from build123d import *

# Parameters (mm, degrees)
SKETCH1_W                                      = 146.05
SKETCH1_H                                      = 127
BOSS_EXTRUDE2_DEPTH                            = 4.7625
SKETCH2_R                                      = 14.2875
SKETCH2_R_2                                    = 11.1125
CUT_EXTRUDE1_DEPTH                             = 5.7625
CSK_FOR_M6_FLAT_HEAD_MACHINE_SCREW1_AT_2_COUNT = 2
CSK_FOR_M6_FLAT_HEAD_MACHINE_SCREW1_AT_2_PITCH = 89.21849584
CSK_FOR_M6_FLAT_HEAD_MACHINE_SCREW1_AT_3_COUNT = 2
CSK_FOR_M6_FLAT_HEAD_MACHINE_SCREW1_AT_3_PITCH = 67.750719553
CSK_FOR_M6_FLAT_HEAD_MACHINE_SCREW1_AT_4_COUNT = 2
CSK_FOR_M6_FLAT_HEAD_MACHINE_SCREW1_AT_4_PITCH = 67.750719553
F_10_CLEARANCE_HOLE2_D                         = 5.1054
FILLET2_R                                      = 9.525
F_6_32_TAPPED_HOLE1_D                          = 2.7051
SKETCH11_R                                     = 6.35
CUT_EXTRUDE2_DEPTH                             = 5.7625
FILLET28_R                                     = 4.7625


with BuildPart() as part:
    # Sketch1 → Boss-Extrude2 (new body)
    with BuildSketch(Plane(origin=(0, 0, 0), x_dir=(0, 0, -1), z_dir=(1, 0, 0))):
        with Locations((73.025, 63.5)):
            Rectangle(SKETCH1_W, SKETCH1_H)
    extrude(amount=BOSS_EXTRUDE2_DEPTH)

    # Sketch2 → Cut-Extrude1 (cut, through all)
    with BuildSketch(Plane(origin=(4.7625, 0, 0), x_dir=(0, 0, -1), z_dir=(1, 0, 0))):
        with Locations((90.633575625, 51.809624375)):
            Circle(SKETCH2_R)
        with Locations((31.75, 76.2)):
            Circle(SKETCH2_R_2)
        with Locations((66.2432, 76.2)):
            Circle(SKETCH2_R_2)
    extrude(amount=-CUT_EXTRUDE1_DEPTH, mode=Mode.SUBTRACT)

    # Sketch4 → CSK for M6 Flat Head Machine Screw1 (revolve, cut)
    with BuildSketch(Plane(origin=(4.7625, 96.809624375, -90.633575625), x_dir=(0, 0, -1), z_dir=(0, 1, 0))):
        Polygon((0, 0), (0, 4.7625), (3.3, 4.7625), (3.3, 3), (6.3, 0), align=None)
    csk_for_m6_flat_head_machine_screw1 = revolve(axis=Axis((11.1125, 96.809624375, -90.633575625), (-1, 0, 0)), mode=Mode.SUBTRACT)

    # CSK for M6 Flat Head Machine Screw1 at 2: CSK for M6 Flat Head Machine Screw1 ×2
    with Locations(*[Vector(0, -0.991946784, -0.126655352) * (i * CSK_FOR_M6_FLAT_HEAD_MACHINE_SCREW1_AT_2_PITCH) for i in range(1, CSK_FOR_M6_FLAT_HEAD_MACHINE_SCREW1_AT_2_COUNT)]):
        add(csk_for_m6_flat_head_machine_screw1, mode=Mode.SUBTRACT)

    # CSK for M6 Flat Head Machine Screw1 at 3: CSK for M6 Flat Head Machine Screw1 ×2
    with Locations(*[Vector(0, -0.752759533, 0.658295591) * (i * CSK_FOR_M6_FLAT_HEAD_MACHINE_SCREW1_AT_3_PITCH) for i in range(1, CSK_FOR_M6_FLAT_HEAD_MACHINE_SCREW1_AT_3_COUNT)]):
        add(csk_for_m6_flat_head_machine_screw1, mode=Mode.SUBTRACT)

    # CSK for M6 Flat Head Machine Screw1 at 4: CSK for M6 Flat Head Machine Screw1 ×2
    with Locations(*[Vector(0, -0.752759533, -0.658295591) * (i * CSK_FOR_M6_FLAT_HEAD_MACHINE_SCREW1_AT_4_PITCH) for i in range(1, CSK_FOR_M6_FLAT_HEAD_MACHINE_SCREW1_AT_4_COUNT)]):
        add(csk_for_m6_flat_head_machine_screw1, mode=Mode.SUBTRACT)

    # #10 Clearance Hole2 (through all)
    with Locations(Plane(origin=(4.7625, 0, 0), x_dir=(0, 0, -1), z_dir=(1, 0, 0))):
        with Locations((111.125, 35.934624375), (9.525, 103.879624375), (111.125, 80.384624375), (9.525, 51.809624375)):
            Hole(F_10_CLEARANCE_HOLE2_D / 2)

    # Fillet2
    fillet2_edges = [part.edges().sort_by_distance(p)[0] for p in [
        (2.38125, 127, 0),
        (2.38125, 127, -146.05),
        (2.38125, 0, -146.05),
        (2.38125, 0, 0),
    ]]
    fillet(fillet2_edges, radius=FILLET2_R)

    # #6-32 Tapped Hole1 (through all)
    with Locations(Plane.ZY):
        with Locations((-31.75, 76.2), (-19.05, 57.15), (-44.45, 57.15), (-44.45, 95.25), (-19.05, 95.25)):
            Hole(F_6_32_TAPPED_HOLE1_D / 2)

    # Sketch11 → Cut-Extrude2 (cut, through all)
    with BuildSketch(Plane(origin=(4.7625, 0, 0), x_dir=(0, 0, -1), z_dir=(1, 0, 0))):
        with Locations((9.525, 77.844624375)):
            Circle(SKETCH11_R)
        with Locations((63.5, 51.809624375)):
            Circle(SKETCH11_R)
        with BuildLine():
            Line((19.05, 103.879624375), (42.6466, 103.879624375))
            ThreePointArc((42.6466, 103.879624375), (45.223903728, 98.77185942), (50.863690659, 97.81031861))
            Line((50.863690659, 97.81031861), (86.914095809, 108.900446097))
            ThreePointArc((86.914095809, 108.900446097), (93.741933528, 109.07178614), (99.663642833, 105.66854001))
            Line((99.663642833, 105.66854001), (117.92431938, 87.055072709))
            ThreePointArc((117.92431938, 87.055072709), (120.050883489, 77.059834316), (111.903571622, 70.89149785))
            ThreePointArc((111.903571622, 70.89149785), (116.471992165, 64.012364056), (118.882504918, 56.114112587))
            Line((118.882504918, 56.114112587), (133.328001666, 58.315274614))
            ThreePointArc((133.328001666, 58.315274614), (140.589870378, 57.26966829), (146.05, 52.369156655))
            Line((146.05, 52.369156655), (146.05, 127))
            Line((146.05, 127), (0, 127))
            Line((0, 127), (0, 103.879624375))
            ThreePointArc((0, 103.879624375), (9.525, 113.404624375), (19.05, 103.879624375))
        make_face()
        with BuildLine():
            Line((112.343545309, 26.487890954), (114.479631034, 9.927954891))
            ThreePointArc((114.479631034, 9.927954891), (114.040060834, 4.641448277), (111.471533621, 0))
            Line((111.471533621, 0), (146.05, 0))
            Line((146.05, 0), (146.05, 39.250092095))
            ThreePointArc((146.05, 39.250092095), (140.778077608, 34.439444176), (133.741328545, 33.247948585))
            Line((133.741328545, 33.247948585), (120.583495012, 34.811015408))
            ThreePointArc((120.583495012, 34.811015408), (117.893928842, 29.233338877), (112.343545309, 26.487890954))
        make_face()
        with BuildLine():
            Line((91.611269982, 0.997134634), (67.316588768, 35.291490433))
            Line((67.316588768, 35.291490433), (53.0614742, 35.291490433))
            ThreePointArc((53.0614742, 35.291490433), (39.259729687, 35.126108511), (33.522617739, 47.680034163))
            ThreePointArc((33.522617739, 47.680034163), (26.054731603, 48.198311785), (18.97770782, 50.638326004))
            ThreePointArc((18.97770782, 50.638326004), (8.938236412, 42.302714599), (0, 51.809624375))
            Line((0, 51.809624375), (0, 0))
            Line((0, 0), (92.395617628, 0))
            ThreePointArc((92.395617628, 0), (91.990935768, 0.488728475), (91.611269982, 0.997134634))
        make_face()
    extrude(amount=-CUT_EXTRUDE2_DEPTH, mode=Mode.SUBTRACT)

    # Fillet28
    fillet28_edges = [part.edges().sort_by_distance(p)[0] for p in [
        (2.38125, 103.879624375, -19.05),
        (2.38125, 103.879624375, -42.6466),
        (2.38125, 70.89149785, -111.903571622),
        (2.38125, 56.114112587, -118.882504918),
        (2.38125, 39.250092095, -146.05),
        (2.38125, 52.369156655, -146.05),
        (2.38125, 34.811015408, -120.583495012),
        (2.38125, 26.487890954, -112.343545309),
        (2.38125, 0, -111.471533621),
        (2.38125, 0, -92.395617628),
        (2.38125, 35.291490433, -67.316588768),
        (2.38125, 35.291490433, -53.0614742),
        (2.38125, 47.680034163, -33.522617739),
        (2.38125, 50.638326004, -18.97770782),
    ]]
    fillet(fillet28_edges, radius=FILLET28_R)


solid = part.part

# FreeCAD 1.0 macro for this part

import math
import FreeCAD as App
import Part
import Sketcher

V = App.Vector
Q = App.Units.Quantity


def edges_at(feature, points):
    """Names of the edges that pass closest to the given points."""
    edges = feature.Shape.Edges
    near = lambda p: min(range(len(edges)), key=lambda i: edges[i].distToShape(Part.Vertex(*p))[0])
    return sorted({f"Edge{near(p) + 1}" for p in points})


def add_polygon(sketch, points):
    """Adds a closed chain of lines whose ends are joined by coincident constraints."""
    first, n = sketch.GeometryCount, len(points)
    for a, b in zip(points, points[1:] + points[:1]):
        sketch.addGeometry(Part.LineSegment(App.Vector(*a, 0), App.Vector(*b, 0)), False)
    for i in range(n):
        sketch.addConstraint(Sketcher.Constraint("Coincident", first + i, 2, first + (i + 1) % n, 1))

doc = App.newDocument("Part")
body = doc.addObject("PartDesign::Body", "Body")

sketch1 = doc.addObject("Sketcher::SketchObject", "Sketch")
body.addObject(sketch1)
sketch1.AttachmentSupport = (doc.YZ_Plane, [""])
sketch1.MapMode = "FlatFace"
add_polygon(sketch1, [(127, 0), (0, 0), (0, -146.05), (127, -146.05)])
sketch1.addConstraint(Sketcher.Constraint("Horizontal", 0))
sketch1.addConstraint(Sketcher.Constraint("Vertical", 1))
sketch1.addConstraint(Sketcher.Constraint("Horizontal", 2))
sketch1.addConstraint(Sketcher.Constraint("Vertical", 3))
sketch1.addConstraint(Sketcher.Constraint("Coincident", 0, 2, -1, 1))
sketch1.addConstraint(Sketcher.Constraint("DistanceX", 0, 2, 0, 1, Q("5 in")))
sketch1.addConstraint(Sketcher.Constraint("DistanceY", 1, 2, 1, 1, Q("5.75 in")))
pad1 = doc.addObject("PartDesign::Pad", "Pad")
body.addObject(pad1)
pad1.Profile = sketch1
pad1.Length = Q("0.1875 in")

sketch2 = doc.addObject("Sketcher::SketchObject", "Sketch001")
body.addObject(sketch2)
sketch2.AttachmentSupport = (doc.YZ_Plane, [""])
sketch2.MapMode = "FlatFace"
sketch2.AttachmentOffset = App.Placement(V(0, 0, 0.1875 * 25.4), App.Rotation())
sketch2.addGeometry(Part.Circle(V(51.809624, -90.633576, 0), V(0, 0, 1), 14.2875), False)
sketch2.addGeometry(Part.Circle(V(76.2, -31.75, 0), V(0, 0, 1), 11.1125), False)
sketch2.addGeometry(Part.Circle(V(76.2, -66.2432, 0), V(0, 0, 1), 11.1125), False)
sketch2.addConstraint(Sketcher.Constraint("Equal", 1, 2))
sketch2.addConstraint(Sketcher.Constraint("Vertical", 1, 3, 2, 3))
sketch2.addConstraint(Sketcher.Constraint("Diameter", 0, Q("1.125 in")))
sketch2.addConstraint(Sketcher.Constraint("Diameter", 1, Q("0.875 in")))
sketch2.addConstraint(Sketcher.Constraint("DistanceX", -1, 1, 1, 3, Q("3 in")))
sketch2.addConstraint(Sketcher.Constraint("DistanceY", 1, 3, -1, 1, Q("1.25 in")))
sketch2.addConstraint(Sketcher.Constraint("DistanceY", 2, 3, -1, 1, Q("2.608 in")))
sketch2.addConstraint(Sketcher.Constraint("DistanceX", -1, 1, 0, 3, Q("51.809624 mm")))
sketch2.addConstraint(Sketcher.Constraint("DistanceY", 0, 3, -1, 1, Q("90.633576 mm")))
pocket1 = doc.addObject("PartDesign::Pocket", "Pocket")
body.addObject(pocket1)
pocket1.Profile = sketch2
pocket1.Type = "ThroughAll"

sketch3 = doc.addObject("Sketcher::SketchObject", "Sketch002")
body.addObject(sketch3)
sketch3.AttachmentSupport = (doc.XZ_Plane, [""])
sketch3.MapMode = "FlatFace"
sketch3.AttachmentOffset = App.Placement(V(0, 0, -96.809624), App.Rotation())
add_polygon(sketch3, [(0, -90.633576), (4.7625, -90.633576), (4.7625, -96.933576), (1.7625, -93.933576), (0, -93.933576)])
sketch3.addGeometry(Part.LineSegment(V(4.7625, -90.633576, 0), V(0, -90.633576, 0)), True)
sketch3.addConstraint(Sketcher.Constraint("Horizontal", 0))
sketch3.addConstraint(Sketcher.Constraint("Vertical", 1))
sketch3.addConstraint(Sketcher.Constraint("Horizontal", 3))
sketch3.addConstraint(Sketcher.Constraint("Vertical", 4))
sketch3.addConstraint(Sketcher.Constraint("Horizontal", 5))
sketch3.addConstraint(Sketcher.Constraint("Coincident", 5, 1, 0, 2))
sketch3.addConstraint(Sketcher.Constraint("PointOnObject", 3, 2, -2))
sketch3.addConstraint(Sketcher.Constraint("PointOnObject", 5, 2, -2))
sketch3.addConstraint(Sketcher.Constraint("Angle", 2, Q("135 deg")))
sketch3.addConstraint(Sketcher.Constraint("DistanceX", 0, 1, 0, 2, Q("0.1875 in")))
sketch3.addConstraint(Sketcher.Constraint("DistanceX", 3, 2, 3, 1, Q("1.7625 mm")))
sketch3.addConstraint(Sketcher.Constraint("DistanceY", 1, 2, 1, 1, Q("6.3 mm")))
sketch3.addConstraint(Sketcher.Constraint("DistanceY", 0, 2, -1, 1, Q("90.633576 mm")))
groove = doc.addObject("PartDesign::Groove", "Groove")
body.addObject(groove)
groove.Profile = sketch3
groove.ReferenceAxis = (sketch3, ["Axis0"])
groove.Angle = 360
doc.recompute()

datumline = doc.addObject("PartDesign::Line", "DatumLine")
body.addObject(datumline)
datumline.Placement = App.Placement(V(0, 0, 0), App.Rotation(V(0, 0, 1), V(0, -0.991946784, -0.126655352)))
linearpattern = doc.addObject("PartDesign::LinearPattern", "LinearPattern")
body.addObject(linearpattern)
linearpattern.Originals = [groove]
linearpattern.Direction = (datumline, [""])
linearpattern.Mode = "offset"
linearpattern.Offset = 89.218496
linearpattern.Occurrences = 2
body.Tip = linearpattern
doc.recompute()

datumline2 = doc.addObject("PartDesign::Line", "DatumLine001")
body.addObject(datumline2)
datumline2.Placement = App.Placement(V(0, 0, 0), App.Rotation(V(0, 0, 1), V(0, -0.752759533, 0.658295591)))
linearpattern2 = doc.addObject("PartDesign::LinearPattern", "LinearPattern001")
body.addObject(linearpattern2)
linearpattern2.Originals = [groove]
linearpattern2.Direction = (datumline2, [""])
linearpattern2.Mode = "offset"
linearpattern2.Offset = 67.75072
linearpattern2.Occurrences = 2
body.Tip = linearpattern2
doc.recompute()

datumline3 = doc.addObject("PartDesign::Line", "DatumLine002")
body.addObject(datumline3)
datumline3.Placement = App.Placement(V(0, 0, 0), App.Rotation(V(0, 0, 1), V(0, -0.752759533, -0.658295591)))
linearpattern3 = doc.addObject("PartDesign::LinearPattern", "LinearPattern002")
body.addObject(linearpattern3)
linearpattern3.Originals = [groove]
linearpattern3.Direction = (datumline3, [""])
linearpattern3.Mode = "offset"
linearpattern3.Offset = 67.75072
linearpattern3.Occurrences = 2
body.Tip = linearpattern3

sketch4 = doc.addObject("Sketcher::SketchObject", "Sketch003")
body.addObject(sketch4)
sketch4.AttachmentSupport = (doc.YZ_Plane, [""])
sketch4.MapMode = "FlatFace"
sketch4.AttachmentOffset = App.Placement(V(0, 0, 0.1875 * 25.4), App.Rotation())
sketch4.addGeometry(Part.Circle(V(35.934624, -111.125, 0), V(0, 0, 1), 2.5527), False)
sketch4.addGeometry(Part.Circle(V(103.879624, -9.525, 0), V(0, 0, 1), 2.5527), False)
sketch4.addGeometry(Part.Circle(V(80.384624, -111.125, 0), V(0, 0, 1), 2.5527), False)
sketch4.addGeometry(Part.Circle(V(51.809624, -9.525, 0), V(0, 0, 1), 2.5527), False)
sketch4.addConstraint(Sketcher.Constraint("Equal", 0, 1))
sketch4.addConstraint(Sketcher.Constraint("Equal", 1, 2))
sketch4.addConstraint(Sketcher.Constraint("Equal", 2, 3))
sketch4.addConstraint(Sketcher.Constraint("Horizontal", 0, 3, 2, 3))
sketch4.addConstraint(Sketcher.Constraint("Horizontal", 1, 3, 3, 3))
sketch4.addConstraint(Sketcher.Constraint("Diameter", 0, Q("0.201 in")))
sketch4.addConstraint(Sketcher.Constraint("DistanceY", 0, 3, 1, 3, Q("4 in")))
sketch4.addConstraint(Sketcher.Constraint("DistanceX", 0, 3, 2, 3, Q("1.75 in")))
sketch4.addConstraint(Sketcher.Constraint("DistanceX", 3, 3, 1, 3, Q("2.05 in")))
sketch4.addConstraint(Sketcher.Constraint("DistanceY", 0, 3, -1, 1, Q("4.375 in")))
sketch4.addConstraint(Sketcher.Constraint("DistanceX", 0, 3, 1, 3, Q("2.675 in")))
sketch4.addConstraint(Sketcher.Constraint("DistanceX", -1, 1, 0, 3, Q("35.934624 mm")))
doc.recompute()
hole = doc.addObject("PartDesign::Hole", "Hole")
body.addObject(hole)
hole.Profile = sketch4
hole.ThreadType = "None"
hole.Diameter = Q("0.201 in")
hole.DepthType = "ThroughAll"
doc.recompute()

fillet = doc.addObject("PartDesign::Fillet", "Fillet")
body.addObject(fillet)
fillet.Base = (hole, edges_at(hole, [
    (2.381, 127, 0),
    (2.381, 127, -146.05),
    (2.381, 0, -146.05),
    (2.381, 0, 0),
]))
fillet.Radius = Q("0.375 in")

sketch5 = doc.addObject("Sketcher::SketchObject", "Sketch004")
body.addObject(sketch5)
sketch5.AttachmentSupport = (doc.YZ_Plane, [""])
sketch5.MapMode = "FlatFace"
sketch5.addGeometry(Part.Circle(V(76.2, -31.75, 0), V(0, 0, 1), 1.35255), False)
sketch5.addGeometry(Part.Circle(V(57.15, -19.05, 0), V(0, 0, 1), 1.35255), False)
sketch5.addGeometry(Part.Circle(V(57.15, -44.45, 0), V(0, 0, 1), 1.35255), False)
sketch5.addGeometry(Part.Circle(V(95.25, -44.45, 0), V(0, 0, 1), 1.35255), False)
sketch5.addGeometry(Part.Circle(V(95.25, -19.05, 0), V(0, 0, 1), 1.35255), False)
sketch5.addConstraint(Sketcher.Constraint("Equal", 0, 1))
sketch5.addConstraint(Sketcher.Constraint("Equal", 1, 2))
sketch5.addConstraint(Sketcher.Constraint("Equal", 2, 3))
sketch5.addConstraint(Sketcher.Constraint("Equal", 3, 4))
sketch5.addConstraint(Sketcher.Constraint("Horizontal", 2, 3, 3, 3))
sketch5.addConstraint(Sketcher.Constraint("Horizontal", 1, 3, 4, 3))
sketch5.addConstraint(Sketcher.Constraint("Vertical", 1, 3, 2, 3))
sketch5.addConstraint(Sketcher.Constraint("Vertical", 3, 3, 4, 3))
sketch5.addConstraint(Sketcher.Constraint("DistanceX", -1, 1, 0, 3, Q("3 in")))
sketch5.addConstraint(Sketcher.Constraint("DistanceY", 2, 3, 1, 3, Q("1 in")))
sketch5.addConstraint(Sketcher.Constraint("Diameter", 0, Q("0.1065 in")))
sketch5.addConstraint(Sketcher.Constraint("DistanceY", 0, 3, 1, 3, Q("0.5 in")))
sketch5.addConstraint(Sketcher.Constraint("DistanceX", 2, 3, 3, 3, Q("1.5 in")))
sketch5.addConstraint(Sketcher.Constraint("DistanceY", 0, 3, -1, 1, Q("1.25 in")))
sketch5.addConstraint(Sketcher.Constraint("DistanceX", -1, 1, 1, 3, Q("2.25 in")))
doc.recompute()
hole2 = doc.addObject("PartDesign::Hole", "Hole001")
body.addObject(hole2)
hole2.Profile = sketch5
hole2.ThreadType = "None"
hole2.Diameter = Q("0.1065 in")
hole2.DepthType = "ThroughAll"
hole2.Reversed = True

sketch6 = doc.addObject("Sketcher::SketchObject", "Sketch005")
body.addObject(sketch6)
sketch6.AttachmentSupport = (doc.YZ_Plane, [""])
sketch6.MapMode = "FlatFace"
sketch6.AttachmentOffset = App.Placement(V(0, 0, 0.1875 * 25.4), App.Rotation())
sketch6.addGeometry(Part.Circle(V(77.844624, -9.525, 0), V(0, 0, 1), 6.35), False)
sketch6.addGeometry(Part.Circle(V(51.809624, -63.5, 0), V(0, 0, 1), 6.35), False)
sketch6.addGeometry(Part.LineSegment(V(103.879624, -19.05, 0), V(103.879624, -42.6466, 0)), False)
sketch6.addGeometry(Part.ArcOfCircle(Part.Circle(V(103.879624, -48.9966, 0), V(0, 0, 1), 6.35), math.radians(90), math.radians(197.099383)), False)
sketch6.addGeometry(Part.LineSegment(V(97.810319, -50.863691, 0), V(108.900446, -86.914096, 0)), False)
sketch6.addGeometry(Part.ArcOfCircle(Part.Circle(V(96.809624, -90.633576, 0), V(0, 0, 1), 12.65), math.radians(-45.548157), math.radians(17.099383)), False)
sketch6.addGeometry(Part.LineSegment(V(105.66854, -99.663643, 0), V(87.055073, -117.924319, 0)), False)
sketch6.addGeometry(Part.ArcOfCircle(Part.Circle(V(80.384624, -111.125, 0), V(0, 0, 1), 9.525), math.radians(-175.311423), math.radians(-45.548157)), False)
sketch6.addGeometry(Part.ArcOfCircle(Part.Circle(V(51.809624, -90.633576, 0), V(0, 0, 1), 28.575), math.radians(-81.336084), math.radians(-48.103884)), False)
sketch6.addGeometry(Part.LineSegment(V(56.114113, -118.882505, 0), V(58.315275, -133.328002, 0)), False)
sketch6.addGeometry(Part.ArcOfCircle(Part.Circle(V(45.809624, -135.233576, 0), V(0, 0, 1), 12.65), math.radians(-58.765625), math.radians(8.663916)), False)
sketch6.addGeometry(Part.LineSegment(V(52.369157, -146.05, 0), V(127, -146.05, 0)), False)
sketch6.addGeometry(Part.LineSegment(V(127, -146.05, 0), V(127, 0, 0)), False)
sketch6.addGeometry(Part.LineSegment(V(127, 0, 0), V(103.879624, 0, 0)), False)
sketch6.addGeometry(Part.ArcOfCircle(Part.Circle(V(103.879624, -9.525, 0), V(0, 0, 1), 9.525), math.radians(-90), math.radians(90)), False)
sketch6.addGeometry(Part.LineSegment(V(26.487891, -112.343545, 0), V(9.927955, -114.479631, 0)), False)
sketch6.addGeometry(Part.ArcOfCircle(Part.Circle(V(8.309624, -101.933576, 0), V(0, 0, 1), 12.65), math.radians(-131.062911), math.radians(-82.649936)), False)
sketch6.addGeometry(Part.LineSegment(V(0, -111.471534, 0), V(0, -146.05, 0)), False)
sketch6.addGeometry(Part.LineSegment(V(0, -146.05, 0), V(39.250092, -146.05, 0)), False)
sketch6.addGeometry(Part.ArcOfCircle(Part.Circle(V(45.809624, -135.233576, 0), V(0, 0, 1), 12.65), math.radians(173.225375), math.radians(238.765625)), False)
sketch6.addGeometry(Part.LineSegment(V(33.247949, -133.741329, 0), V(34.811015, -120.583495, 0)), False)
sketch6.addGeometry(Part.ArcOfCircle(Part.Circle(V(35.934624, -111.125, 0), V(0, 0, 1), 9.525), math.radians(-172.649936), math.radians(-96.774625)), False)
sketch6.addGeometry(Part.LineSegment(V(0.997135, -91.61127, 0), V(35.29149, -67.316589, 0)), False)
sketch6.addGeometry(Part.LineSegment(V(35.29149, -67.316589, 0), V(35.29149, -53.061474, 0)), False)
sketch6.addGeometry(Part.ArcOfCircle(Part.Circle(V(45.809624, -46.033576, 0), V(0, 0, 1), 12.65), math.radians(81.497157), math.radians(213.749647)), False)
sketch6.addGeometry(Part.ArcOfCircle(Part.Circle(V(76.2, -31.75, 0), V(0, 0, 1), 28.575), math.radians(153.450273), math.radians(183.556562)), False)
sketch6.addGeometry(Part.ArcOfCircle(Part.Circle(V(51.809624, -9.525, 0), V(0, 0, 1), 9.525), math.radians(90), math.radians(262.936404)), False)
sketch6.addGeometry(Part.LineSegment(V(51.809624, 0, 0), V(0, 0, 0)), False)
sketch6.addGeometry(Part.LineSegment(V(0, 0, 0), V(0, -92.395618, 0)), False)
sketch6.addGeometry(Part.ArcOfCircle(Part.Circle(V(8.309624, -101.933576, 0), V(0, 0, 1), 12.65), math.radians(125.314379), math.radians(131.062911)), False)
sketch6.addConstraint(Sketcher.Constraint("Coincident", 2, 2, 3, 1))
sketch6.addConstraint(Sketcher.Constraint("Tangent", 3, 2, 4, 1))
sketch6.addConstraint(Sketcher.Constraint("Tangent", 4, 2, 5, 2))
sketch6.addConstraint(Sketcher.Constraint("Tangent", 5, 1, 6, 1))
sketch6.addConstraint(Sketcher.Constraint("Tangent", 6, 2, 7, 2))
sketch6.addConstraint(Sketcher.Constraint("Coincident", 7, 1, 8, 2))
sketch6.addConstraint(Sketcher.Constraint("Coincident", 8, 1, 9, 1))
sketch6.addConstraint(Sketcher.Constraint("Tangent", 9, 2, 10, 2))
sketch6.addConstraint(Sketcher.Constraint("Coincident", 10, 1, 11, 1))
sketch6.addConstraint(Sketcher.Constraint("Coincident", 11, 2, 12, 1))
sketch6.addConstraint(Sketcher.Constraint("Coincident", 12, 2, 13, 1))
sketch6.addConstraint(Sketcher.Constraint("Tangent", 13, 2, 14, 2))
sketch6.addConstraint(Sketcher.Constraint("Coincident", 14, 1, 2, 1))
sketch6.addConstraint(Sketcher.Constraint("Tangent", 15, 2, 16, 2))
sketch6.addConstraint(Sketcher.Constraint("Coincident", 16, 1, 17, 1))
sketch6.addConstraint(Sketcher.Constraint("Coincident", 17, 2, 18, 1))
sketch6.addConstraint(Sketcher.Constraint("Coincident", 18, 2, 19, 2))
sketch6.addConstraint(Sketcher.Constraint("Tangent", 19, 1, 20, 1))
sketch6.addConstraint(Sketcher.Constraint("Coincident", 20, 2, 21, 2))
sketch6.addConstraint(Sketcher.Constraint("Coincident", 21, 1, 15, 1))
sketch6.addConstraint(Sketcher.Constraint("Coincident", 22, 2, 23, 1))
sketch6.addConstraint(Sketcher.Constraint("Coincident", 23, 2, 24, 2))
sketch6.addConstraint(Sketcher.Constraint("Coincident", 24, 1, 25, 2))
sketch6.addConstraint(Sketcher.Constraint("Coincident", 25, 1, 26, 2))
sketch6.addConstraint(Sketcher.Constraint("Tangent", 26, 1, 27, 1))
sketch6.addConstraint(Sketcher.Constraint("Coincident", 27, 2, 28, 1))
sketch6.addConstraint(Sketcher.Constraint("Coincident", 28, 2, 29, 2))
sketch6.addConstraint(Sketcher.Constraint("Tangent", 29, 1, 22, 1))
sketch6.addConstraint(Sketcher.Constraint("Vertical", 2))
sketch6.addConstraint(Sketcher.Constraint("Horizontal", 11))
sketch6.addConstraint(Sketcher.Constraint("Vertical", 12))
sketch6.addConstraint(Sketcher.Constraint("Horizontal", 13))
sketch6.addConstraint(Sketcher.Constraint("Vertical", 17))
sketch6.addConstraint(Sketcher.Constraint("Horizontal", 18))
sketch6.addConstraint(Sketcher.Constraint("Vertical", 23))
sketch6.addConstraint(Sketcher.Constraint("Horizontal", 27))
sketch6.addConstraint(Sketcher.Constraint("Vertical", 28))
sketch6.addConstraint(Sketcher.Constraint("Coincident", 27, 2, -1, 1))
sketch6.addConstraint(Sketcher.Constraint("Coincident", 19, 3, 10, 3))
sketch6.addConstraint(Sketcher.Constraint("Coincident", 29, 3, 16, 3))
sketch6.addConstraint(Sketcher.Constraint("Equal", 0, 1))
sketch6.addConstraint(Sketcher.Constraint("Equal", 1, 3))
sketch6.addConstraint(Sketcher.Constraint("Equal", 5, 10))
sketch6.addConstraint(Sketcher.Constraint("Equal", 7, 14))
sketch6.addConstraint(Sketcher.Constraint("Equal", 10, 16))
sketch6.addConstraint(Sketcher.Constraint("Equal", 16, 19))
sketch6.addConstraint(Sketcher.Constraint("Equal", 14, 21))
sketch6.addConstraint(Sketcher.Constraint("Equal", 19, 24))
sketch6.addConstraint(Sketcher.Constraint("Equal", 8, 25))
sketch6.addConstraint(Sketcher.Constraint("Equal", 21, 26))
sketch6.addConstraint(Sketcher.Constraint("Equal", 24, 29))
sketch6.addConstraint(Sketcher.Constraint("PointOnObject", 12, 2, -1))
sketch6.addConstraint(Sketcher.Constraint("PointOnObject", 16, 1, -2))
sketch6.addConstraint(Sketcher.Constraint("Horizontal", 5, 3, 8, 3))
sketch6.addConstraint(Sketcher.Constraint("Horizontal", 0, 3, 14, 3))
sketch6.addConstraint(Sketcher.Constraint("Horizontal", 7, 3, 21, 3))
sketch6.addConstraint(Sketcher.Constraint("Horizontal", 11, 2, 17, 2))
sketch6.addConstraint(Sketcher.Constraint("Vertical", 1, 3, 8, 3))
sketch6.addConstraint(Sketcher.Constraint("Vertical", 3, 3, 14, 3))
sketch6.addConstraint(Sketcher.Constraint("Vertical", 19, 3, 24, 3))
sketch6.addConstraint(Sketcher.Constraint("Vertical", 8, 3, 26, 3))
sketch6.addConstraint(Sketcher.Constraint("Vertical", 14, 3, 2, 2))
sketch6.addConstraint(Sketcher.Constraint("Diameter", 0, Q("0.5 in")))
sketch6.addConstraint(Sketcher.Constraint("DistanceX", -1, 1, 25, 3, Q("3 in")))
sketch6.addConstraint(Sketcher.Constraint("DistanceX", -1, 1, 11, 2, Q("5 in")))
sketch6.addConstraint(Sketcher.Constraint("Radius", 7, Q("0.375 in")))
sketch6.addConstraint(Sketcher.Constraint("Radius", 8, Q("1.125 in")))
sketch6.addConstraint(Sketcher.Constraint("DistanceY", 7, 3, 0, 3, Q("4 in")))
sketch6.addConstraint(Sketcher.Constraint("DistanceY", 12, 1, 12, 2, Q("5.75 in")))
sketch6.addConstraint(Sketcher.Constraint("DistanceY", 1, 3, -1, 1, Q("2.5 in")))
sketch6.addConstraint(Sketcher.Constraint("DistanceX", 0, 3, 7, 3, Q("0.1 in")))
sketch6.addConstraint(Sketcher.Constraint("DistanceY", 2, 2, 2, 1, Q("0.929 in")))
sketch6.addConstraint(Sketcher.Constraint("DistanceY", 25, 3, -1, 1, Q("1.25 in")))
sketch6.addConstraint(Sketcher.Constraint("Radius", 5, Q("12.65 mm")))
sketch6.addConstraint(Sketcher.Constraint("DistanceX", 1, 3, 3, 3, Q("2.05 in")))
sketch6.addConstraint(Sketcher.Constraint("DistanceX", 21, 3, 7, 3, Q("1.75 in")))
sketch6.addConstraint(Sketcher.Constraint("DistanceX", 1, 3, 0, 3, Q("1.025 in")))
sketch6.addConstraint(Sketcher.Constraint("DistanceX", -1, 1, 3, 2, Q("3.8507999 in")))
sketch6.addConstraint(Sketcher.Constraint("DistanceY", 16, 1, 29, 1, Q("0.7819001 in")))
sketch6.addConstraint(Sketcher.Constraint("DistanceY", 9, 2, -1, 1, Q("133.328002 mm")))
sketch6.addConstraint(Sketcher.Constraint("DistanceX", 5, 3, 3, 3, Q("7.07 mm")))
sketch6.addConstraint(Sketcher.Constraint("DistanceX", 10, 3, 7, 3, Q("34.575 mm")))
sketch6.addConstraint(Sketcher.Constraint("DistanceY", 10, 3, 8, 3, Q("44.6 mm")))
sketch6.addConstraint(Sketcher.Constraint("DistanceX", 16, 3, 8, 3, Q("43.5 mm")))
sketch6.addConstraint(Sketcher.Constraint("DistanceY", 16, 3, 8, 3, Q("11.3 mm")))
sketch6.addConstraint(Sketcher.Constraint("DistanceY", 8, 3, 24, 3, Q("44.6 mm")))
sketch6.addConstraint(Sketcher.Constraint("DistanceY", 23, 2, 24, 3, Q("7.027899 mm")))
sketch6.addConstraint(Sketcher.Constraint("Distance", 4, Q("37.71767 mm")))
sketch6.addConstraint(Sketcher.Constraint("Distance", 20, Q("13.250349 mm")))
sketch6.addConstraint(Sketcher.Constraint("DistanceY", 15, 2, -1, 1, Q("114.479631 mm")))
pocket2 = doc.addObject("PartDesign::Pocket", "Pocket001")
body.addObject(pocket2)
pocket2.Profile = sketch6
pocket2.Type = "ThroughAll"
doc.recompute()

fillet2 = doc.addObject("PartDesign::Fillet", "Fillet001")
body.addObject(fillet2)
fillet2.Base = (pocket2, edges_at(pocket2, [
    (2.381, 103.88, -19.05),
    (2.381, 103.88, -42.647),
    (2.381, 70.891, -111.904),
    (2.381, 56.114, -118.883),
    (2.381, 39.25, -146.05),
    (2.381, 52.369, -146.05),
    (2.381, 34.811, -120.583),
    (2.381, 26.488, -112.344),
    (2.381, 0, -111.472),
    (2.381, 0, -92.396),
    (2.381, 35.291, -67.317),
    (2.381, 35.291, -53.061),
    (2.381, 47.68, -33.523),
    (2.381, 50.638, -18.978),
]))
fillet2.Radius = Q("0.1875 in")

doc.recompute()
